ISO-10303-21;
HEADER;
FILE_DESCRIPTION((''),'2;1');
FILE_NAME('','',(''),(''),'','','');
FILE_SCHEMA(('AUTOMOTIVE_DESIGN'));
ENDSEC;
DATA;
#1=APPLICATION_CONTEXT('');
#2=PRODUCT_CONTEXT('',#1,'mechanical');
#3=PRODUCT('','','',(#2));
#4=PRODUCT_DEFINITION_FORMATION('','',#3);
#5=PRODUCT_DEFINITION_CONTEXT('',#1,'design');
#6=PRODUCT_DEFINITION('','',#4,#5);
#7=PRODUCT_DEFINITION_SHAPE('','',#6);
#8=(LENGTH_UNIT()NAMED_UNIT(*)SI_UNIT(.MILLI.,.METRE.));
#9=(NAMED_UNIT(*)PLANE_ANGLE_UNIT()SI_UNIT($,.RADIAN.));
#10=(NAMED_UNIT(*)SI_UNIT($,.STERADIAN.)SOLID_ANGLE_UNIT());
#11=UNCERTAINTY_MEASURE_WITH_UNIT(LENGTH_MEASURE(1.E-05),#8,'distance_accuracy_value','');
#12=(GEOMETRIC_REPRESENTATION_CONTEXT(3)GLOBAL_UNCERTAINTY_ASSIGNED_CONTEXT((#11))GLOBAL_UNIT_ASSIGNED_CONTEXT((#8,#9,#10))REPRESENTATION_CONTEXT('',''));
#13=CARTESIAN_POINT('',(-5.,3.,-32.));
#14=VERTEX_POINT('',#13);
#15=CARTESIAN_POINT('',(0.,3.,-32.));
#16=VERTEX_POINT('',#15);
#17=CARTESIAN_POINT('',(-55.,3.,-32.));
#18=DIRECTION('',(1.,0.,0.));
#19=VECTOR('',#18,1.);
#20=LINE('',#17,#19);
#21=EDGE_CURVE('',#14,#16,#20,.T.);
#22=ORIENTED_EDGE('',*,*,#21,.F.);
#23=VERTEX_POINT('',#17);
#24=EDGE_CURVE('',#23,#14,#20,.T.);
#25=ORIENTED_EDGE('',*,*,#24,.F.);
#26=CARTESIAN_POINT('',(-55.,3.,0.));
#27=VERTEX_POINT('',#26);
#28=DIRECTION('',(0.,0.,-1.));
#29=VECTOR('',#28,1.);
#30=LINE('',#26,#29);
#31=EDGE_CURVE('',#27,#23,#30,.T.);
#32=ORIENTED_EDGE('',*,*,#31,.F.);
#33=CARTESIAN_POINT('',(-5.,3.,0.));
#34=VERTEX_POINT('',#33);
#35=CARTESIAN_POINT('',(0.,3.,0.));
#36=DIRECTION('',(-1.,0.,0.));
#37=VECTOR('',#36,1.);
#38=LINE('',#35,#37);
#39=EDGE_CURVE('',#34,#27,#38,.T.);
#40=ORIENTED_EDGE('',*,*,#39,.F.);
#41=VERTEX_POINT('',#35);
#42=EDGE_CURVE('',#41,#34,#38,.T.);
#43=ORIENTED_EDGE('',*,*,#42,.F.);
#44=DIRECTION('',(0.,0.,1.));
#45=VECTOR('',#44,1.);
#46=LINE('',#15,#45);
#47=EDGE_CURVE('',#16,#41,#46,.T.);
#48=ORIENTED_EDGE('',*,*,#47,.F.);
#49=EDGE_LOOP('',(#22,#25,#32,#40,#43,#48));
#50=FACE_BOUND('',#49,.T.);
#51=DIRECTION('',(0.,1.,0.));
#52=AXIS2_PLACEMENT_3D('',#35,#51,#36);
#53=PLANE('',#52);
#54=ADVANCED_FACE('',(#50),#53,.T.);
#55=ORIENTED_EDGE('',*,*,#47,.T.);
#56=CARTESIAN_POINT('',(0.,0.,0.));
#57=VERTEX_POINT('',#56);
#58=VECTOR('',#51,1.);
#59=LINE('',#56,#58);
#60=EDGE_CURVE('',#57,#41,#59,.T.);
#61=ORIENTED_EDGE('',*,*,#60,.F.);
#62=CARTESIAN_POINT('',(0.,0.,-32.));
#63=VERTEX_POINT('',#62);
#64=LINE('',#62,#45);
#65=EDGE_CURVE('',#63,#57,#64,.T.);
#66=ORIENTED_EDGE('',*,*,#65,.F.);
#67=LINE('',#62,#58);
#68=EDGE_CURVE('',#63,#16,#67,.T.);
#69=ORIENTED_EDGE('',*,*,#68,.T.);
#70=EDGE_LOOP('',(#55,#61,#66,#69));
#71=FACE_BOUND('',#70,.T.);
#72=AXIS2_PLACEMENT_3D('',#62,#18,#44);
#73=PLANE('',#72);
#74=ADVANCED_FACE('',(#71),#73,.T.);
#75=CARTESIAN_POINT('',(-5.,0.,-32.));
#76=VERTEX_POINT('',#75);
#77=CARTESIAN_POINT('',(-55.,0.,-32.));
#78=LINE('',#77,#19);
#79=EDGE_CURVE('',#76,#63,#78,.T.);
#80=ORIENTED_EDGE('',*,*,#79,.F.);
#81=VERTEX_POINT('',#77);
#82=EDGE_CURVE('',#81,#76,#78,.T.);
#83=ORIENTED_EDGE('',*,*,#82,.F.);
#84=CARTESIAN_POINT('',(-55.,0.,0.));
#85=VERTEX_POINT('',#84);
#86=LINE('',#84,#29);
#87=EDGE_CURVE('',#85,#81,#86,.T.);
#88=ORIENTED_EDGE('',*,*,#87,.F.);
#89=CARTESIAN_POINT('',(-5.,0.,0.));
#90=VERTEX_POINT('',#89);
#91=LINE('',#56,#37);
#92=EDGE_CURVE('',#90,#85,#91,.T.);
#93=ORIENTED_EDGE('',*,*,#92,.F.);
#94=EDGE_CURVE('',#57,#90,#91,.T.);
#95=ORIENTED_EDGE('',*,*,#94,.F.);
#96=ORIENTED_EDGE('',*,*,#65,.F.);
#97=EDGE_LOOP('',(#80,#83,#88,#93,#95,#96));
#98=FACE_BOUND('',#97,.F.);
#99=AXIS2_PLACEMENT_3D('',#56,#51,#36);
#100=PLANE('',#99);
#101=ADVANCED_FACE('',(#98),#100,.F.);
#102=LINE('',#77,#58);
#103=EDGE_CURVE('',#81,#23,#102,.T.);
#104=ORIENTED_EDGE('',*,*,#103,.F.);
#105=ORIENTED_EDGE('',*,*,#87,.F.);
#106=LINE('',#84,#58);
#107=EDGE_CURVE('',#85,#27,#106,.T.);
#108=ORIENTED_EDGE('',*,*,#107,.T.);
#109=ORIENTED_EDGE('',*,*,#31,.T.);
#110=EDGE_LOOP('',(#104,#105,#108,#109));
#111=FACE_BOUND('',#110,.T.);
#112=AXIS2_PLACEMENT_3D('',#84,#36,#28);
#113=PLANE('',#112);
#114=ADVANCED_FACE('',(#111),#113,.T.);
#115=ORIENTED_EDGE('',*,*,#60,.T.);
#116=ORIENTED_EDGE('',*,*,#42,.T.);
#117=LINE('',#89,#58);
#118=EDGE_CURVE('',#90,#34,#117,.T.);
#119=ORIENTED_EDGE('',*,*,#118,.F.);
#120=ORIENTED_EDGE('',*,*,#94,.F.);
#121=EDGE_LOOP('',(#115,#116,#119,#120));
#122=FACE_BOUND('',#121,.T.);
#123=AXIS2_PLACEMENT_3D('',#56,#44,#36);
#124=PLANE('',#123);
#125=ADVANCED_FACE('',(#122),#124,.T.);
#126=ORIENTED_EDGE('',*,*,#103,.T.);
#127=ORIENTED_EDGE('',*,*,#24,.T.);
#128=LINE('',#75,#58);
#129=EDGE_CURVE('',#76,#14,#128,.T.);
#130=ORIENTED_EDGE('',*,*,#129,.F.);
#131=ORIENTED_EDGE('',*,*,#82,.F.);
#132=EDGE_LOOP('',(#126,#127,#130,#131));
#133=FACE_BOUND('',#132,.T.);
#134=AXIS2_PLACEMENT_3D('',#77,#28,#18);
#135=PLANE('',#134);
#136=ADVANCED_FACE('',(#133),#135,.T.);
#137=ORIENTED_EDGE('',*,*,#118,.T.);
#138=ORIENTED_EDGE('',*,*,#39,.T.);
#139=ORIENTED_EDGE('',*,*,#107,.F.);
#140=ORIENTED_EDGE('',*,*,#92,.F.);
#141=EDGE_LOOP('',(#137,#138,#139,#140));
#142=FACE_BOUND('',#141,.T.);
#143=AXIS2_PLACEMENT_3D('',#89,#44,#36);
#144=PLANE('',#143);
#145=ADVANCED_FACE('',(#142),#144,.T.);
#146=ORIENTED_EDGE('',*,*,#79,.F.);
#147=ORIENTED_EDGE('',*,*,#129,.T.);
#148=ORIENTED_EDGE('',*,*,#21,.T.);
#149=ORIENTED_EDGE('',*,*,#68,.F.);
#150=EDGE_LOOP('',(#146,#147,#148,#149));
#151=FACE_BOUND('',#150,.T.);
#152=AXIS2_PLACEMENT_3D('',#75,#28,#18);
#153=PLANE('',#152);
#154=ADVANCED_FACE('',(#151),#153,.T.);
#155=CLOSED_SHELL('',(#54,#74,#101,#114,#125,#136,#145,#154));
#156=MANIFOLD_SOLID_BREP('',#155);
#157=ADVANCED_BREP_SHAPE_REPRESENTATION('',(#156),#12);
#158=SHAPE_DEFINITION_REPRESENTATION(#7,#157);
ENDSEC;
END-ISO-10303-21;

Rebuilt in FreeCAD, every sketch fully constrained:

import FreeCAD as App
import Part
import Sketcher
from FreeCAD import Vector
Q = App.Units.Quantity

doc = App.newDocument("Part")
body = doc.addObject("PartDesign::Body", "Body")

sketch1 = doc.addObject("Sketcher::SketchObject", "Sketch")
body.addObject(sketch1)
sketch1.AttachmentSupport = (doc.XZ_Plane, [""])
sketch1.MapMode = "FlatFace"
sketch1.addGeometry([
    Part.LineSegment(Vector(-55, 0, 0), Vector(0, 0, 0)),
    Part.LineSegment(Vector(0, 0, 0), Vector(0, -32, 0)),
    Part.LineSegment(Vector(0, -32, 0), Vector(-55, -32, 0)),
    Part.LineSegment(Vector(-55, -32, 0), Vector(-55, 0, 0)),
], False)
sketch1.addConstraint([
    Sketcher.Constraint("Coincident", 0, 2, 1, 1),
    Sketcher.Constraint("Coincident", 1, 2, 2, 1),
    Sketcher.Constraint("Coincident", 2, 2, 3, 1),
    Sketcher.Constraint("Coincident", 3, 2, 0, 1),
    Sketcher.Constraint("Horizontal", 0),
    Sketcher.Constraint("Vertical", 1),
    Sketcher.Constraint("Horizontal", 2),
    Sketcher.Constraint("Vertical", 3),
    Sketcher.Constraint("Coincident", 0, 2, -1, 1),
    Sketcher.Constraint("DistanceX", 0, 1, 0, 2, Q("55 mm")),
    Sketcher.Constraint("DistanceY", 1, 2, 1, 1, Q("32 mm")),
])
pad1 = doc.addObject("PartDesign::Pad", "Pad")
body.addObject(pad1)
pad1.Profile = sketch1
pad1.Length = 3
pad1.Reversed = True

doc.recompute()
